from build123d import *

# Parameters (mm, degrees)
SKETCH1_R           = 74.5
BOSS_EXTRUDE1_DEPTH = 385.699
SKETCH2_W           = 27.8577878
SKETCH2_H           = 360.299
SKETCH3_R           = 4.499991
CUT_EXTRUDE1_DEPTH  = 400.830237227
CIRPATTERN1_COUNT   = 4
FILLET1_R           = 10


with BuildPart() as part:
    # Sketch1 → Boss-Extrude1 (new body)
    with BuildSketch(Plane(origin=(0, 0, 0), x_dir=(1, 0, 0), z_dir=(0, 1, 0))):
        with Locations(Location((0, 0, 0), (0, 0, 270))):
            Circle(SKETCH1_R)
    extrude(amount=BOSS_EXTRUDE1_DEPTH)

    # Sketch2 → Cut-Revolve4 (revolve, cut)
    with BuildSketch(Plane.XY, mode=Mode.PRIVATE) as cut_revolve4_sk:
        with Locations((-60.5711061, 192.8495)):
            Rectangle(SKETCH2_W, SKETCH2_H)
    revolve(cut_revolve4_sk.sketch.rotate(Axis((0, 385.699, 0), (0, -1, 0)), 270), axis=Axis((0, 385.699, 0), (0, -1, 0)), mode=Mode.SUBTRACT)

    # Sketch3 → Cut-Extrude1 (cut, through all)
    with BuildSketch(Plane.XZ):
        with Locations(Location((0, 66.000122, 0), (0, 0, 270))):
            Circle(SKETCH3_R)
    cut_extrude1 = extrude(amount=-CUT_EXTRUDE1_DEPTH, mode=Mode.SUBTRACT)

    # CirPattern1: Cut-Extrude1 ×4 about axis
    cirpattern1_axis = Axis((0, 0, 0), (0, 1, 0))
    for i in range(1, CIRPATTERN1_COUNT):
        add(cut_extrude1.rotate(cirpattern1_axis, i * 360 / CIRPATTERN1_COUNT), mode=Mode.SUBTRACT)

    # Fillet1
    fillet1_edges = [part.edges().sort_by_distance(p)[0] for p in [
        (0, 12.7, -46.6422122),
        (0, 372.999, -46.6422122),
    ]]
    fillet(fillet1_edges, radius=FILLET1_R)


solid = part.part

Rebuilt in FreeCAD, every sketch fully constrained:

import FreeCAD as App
import Part
import Sketcher
from FreeCAD import Vector


def edges_at(feature, points):
    """Names of the edges that pass closest to the given points."""
    edges = feature.Shape.Edges
    near = lambda p: min(range(len(edges)), key=lambda i: edges[i].distToShape(Part.Vertex(*p))[0])
    return sorted({f"Edge{near(p) + 1}" for p in points})


def add_polygon(sketch, points):
    """Adds a closed chain of lines whose ends are joined by coincident constraints."""
    first, n = sketch.GeometryCount, len(points)
    for a, b in zip(points, points[1:] + points[:1]):
        sketch.addGeometry(Part.LineSegment(App.Vector(*a, 0), App.Vector(*b, 0)), False)
    for i in range(n):
        sketch.addConstraint(Sketcher.Constraint("Coincident", first + i, 2, first + (i + 1) % n, 1))

doc = App.newDocument("Part")
body = doc.addObject("PartDesign::Body", "Body")

# Sketch on XZ plane
sketch1 = body.newObject("Sketcher::SketchObject", "Sketch")
sketch1.AttachmentSupport = (doc.getObject("XZ_Plane"), [""])
sketch1.MapMode = "FlatFace"
sketch1.addGeometry(Part.Circle(Vector(0, 0, 0), Vector(0, 0, 1), 74.5), False)
sketch1.addConstraint([
    Sketcher.Constraint("Coincident", 0, 3, -1, 1),
    Sketcher.Constraint("Diameter", 0, 149.0),
])
pad1 = body.newObject("PartDesign::Pad", "Pad")
pad1.Profile = sketch1
pad1.Length = 385.699
pad1.Reversed = True

# Sketch on XY plane
sketch2 = body.newObject("Sketcher::SketchObject", "Sketch001")
sketch2.AttachmentSupport = (doc.getObject("XY_Plane"), [""])
sketch2.MapMode = "FlatFace"
add_polygon(sketch2, [(-74.5, 372.999), (-74.5, 12.7), (-46.642212, 12.7), (-46.642212, 372.999)])  # lines 0-3
sketch2.addConstraint([
    Sketcher.Constraint("Vertical", 0),
    Sketcher.Constraint("Horizontal", 1),
    Sketcher.Constraint("Vertical", 2),
    Sketcher.Constraint("Horizontal", 3),
    Sketcher.Constraint("DistanceX", 0, 2, -1, 1, 74.5),
    Sketcher.Constraint("DistanceY", -1, 1, 0, 2, 12.7),
    Sketcher.Constraint("DistanceY", 0, 2, 0, 1, 360.299),
    Sketcher.Constraint("DistanceX", 1, 1, 1, 2, 27.857788),
])
groove = body.newObject("PartDesign::Groove", "Groove")
groove.Profile = sketch2
groove.ReferenceAxis = (sketch2, ["V_Axis"])
groove.Angle = 360

# Sketch on XZ plane
sketch3 = body.newObject("Sketcher::SketchObject", "Sketch002")
sketch3.AttachmentSupport = (doc.getObject("XZ_Plane"), [""])
sketch3.MapMode = "FlatFace"
sketch3.addGeometry(Part.Circle(Vector(0, 66.000122, 0), Vector(0, 0, 1), 4.499991), False)
sketch3.addConstraint([
    Sketcher.Constraint("PointOnObject", 0, 3, -2),
    Sketcher.Constraint("Diameter", 0, 8.999982),
    Sketcher.Constraint("DistanceY", -1, 1, 0, 3, 66.000122),
])
pocket1 = body.newObject("PartDesign::Pocket", "Pocket")
pocket1.Profile = sketch3
pocket1.Type = "ThroughAll"
doc.recompute()

polarpattern = body.newObject("PartDesign::PolarPattern", "PolarPattern")
polarpattern.Originals = [pocket1]
polarpattern.Axis = (doc.getObject("Y_Axis"), [""])
polarpattern.Angle = 360
polarpattern.Occurrences = 4
body.Tip = polarpattern
doc.recompute()

fillet = body.newObject("PartDesign::Fillet", "Fillet")
fillet.Base = (polarpattern, edges_at(polarpattern, [(0, 12.7, -46.642), (0, 372.999, -46.642)]))
fillet.Radius = 10

doc.recompute()
